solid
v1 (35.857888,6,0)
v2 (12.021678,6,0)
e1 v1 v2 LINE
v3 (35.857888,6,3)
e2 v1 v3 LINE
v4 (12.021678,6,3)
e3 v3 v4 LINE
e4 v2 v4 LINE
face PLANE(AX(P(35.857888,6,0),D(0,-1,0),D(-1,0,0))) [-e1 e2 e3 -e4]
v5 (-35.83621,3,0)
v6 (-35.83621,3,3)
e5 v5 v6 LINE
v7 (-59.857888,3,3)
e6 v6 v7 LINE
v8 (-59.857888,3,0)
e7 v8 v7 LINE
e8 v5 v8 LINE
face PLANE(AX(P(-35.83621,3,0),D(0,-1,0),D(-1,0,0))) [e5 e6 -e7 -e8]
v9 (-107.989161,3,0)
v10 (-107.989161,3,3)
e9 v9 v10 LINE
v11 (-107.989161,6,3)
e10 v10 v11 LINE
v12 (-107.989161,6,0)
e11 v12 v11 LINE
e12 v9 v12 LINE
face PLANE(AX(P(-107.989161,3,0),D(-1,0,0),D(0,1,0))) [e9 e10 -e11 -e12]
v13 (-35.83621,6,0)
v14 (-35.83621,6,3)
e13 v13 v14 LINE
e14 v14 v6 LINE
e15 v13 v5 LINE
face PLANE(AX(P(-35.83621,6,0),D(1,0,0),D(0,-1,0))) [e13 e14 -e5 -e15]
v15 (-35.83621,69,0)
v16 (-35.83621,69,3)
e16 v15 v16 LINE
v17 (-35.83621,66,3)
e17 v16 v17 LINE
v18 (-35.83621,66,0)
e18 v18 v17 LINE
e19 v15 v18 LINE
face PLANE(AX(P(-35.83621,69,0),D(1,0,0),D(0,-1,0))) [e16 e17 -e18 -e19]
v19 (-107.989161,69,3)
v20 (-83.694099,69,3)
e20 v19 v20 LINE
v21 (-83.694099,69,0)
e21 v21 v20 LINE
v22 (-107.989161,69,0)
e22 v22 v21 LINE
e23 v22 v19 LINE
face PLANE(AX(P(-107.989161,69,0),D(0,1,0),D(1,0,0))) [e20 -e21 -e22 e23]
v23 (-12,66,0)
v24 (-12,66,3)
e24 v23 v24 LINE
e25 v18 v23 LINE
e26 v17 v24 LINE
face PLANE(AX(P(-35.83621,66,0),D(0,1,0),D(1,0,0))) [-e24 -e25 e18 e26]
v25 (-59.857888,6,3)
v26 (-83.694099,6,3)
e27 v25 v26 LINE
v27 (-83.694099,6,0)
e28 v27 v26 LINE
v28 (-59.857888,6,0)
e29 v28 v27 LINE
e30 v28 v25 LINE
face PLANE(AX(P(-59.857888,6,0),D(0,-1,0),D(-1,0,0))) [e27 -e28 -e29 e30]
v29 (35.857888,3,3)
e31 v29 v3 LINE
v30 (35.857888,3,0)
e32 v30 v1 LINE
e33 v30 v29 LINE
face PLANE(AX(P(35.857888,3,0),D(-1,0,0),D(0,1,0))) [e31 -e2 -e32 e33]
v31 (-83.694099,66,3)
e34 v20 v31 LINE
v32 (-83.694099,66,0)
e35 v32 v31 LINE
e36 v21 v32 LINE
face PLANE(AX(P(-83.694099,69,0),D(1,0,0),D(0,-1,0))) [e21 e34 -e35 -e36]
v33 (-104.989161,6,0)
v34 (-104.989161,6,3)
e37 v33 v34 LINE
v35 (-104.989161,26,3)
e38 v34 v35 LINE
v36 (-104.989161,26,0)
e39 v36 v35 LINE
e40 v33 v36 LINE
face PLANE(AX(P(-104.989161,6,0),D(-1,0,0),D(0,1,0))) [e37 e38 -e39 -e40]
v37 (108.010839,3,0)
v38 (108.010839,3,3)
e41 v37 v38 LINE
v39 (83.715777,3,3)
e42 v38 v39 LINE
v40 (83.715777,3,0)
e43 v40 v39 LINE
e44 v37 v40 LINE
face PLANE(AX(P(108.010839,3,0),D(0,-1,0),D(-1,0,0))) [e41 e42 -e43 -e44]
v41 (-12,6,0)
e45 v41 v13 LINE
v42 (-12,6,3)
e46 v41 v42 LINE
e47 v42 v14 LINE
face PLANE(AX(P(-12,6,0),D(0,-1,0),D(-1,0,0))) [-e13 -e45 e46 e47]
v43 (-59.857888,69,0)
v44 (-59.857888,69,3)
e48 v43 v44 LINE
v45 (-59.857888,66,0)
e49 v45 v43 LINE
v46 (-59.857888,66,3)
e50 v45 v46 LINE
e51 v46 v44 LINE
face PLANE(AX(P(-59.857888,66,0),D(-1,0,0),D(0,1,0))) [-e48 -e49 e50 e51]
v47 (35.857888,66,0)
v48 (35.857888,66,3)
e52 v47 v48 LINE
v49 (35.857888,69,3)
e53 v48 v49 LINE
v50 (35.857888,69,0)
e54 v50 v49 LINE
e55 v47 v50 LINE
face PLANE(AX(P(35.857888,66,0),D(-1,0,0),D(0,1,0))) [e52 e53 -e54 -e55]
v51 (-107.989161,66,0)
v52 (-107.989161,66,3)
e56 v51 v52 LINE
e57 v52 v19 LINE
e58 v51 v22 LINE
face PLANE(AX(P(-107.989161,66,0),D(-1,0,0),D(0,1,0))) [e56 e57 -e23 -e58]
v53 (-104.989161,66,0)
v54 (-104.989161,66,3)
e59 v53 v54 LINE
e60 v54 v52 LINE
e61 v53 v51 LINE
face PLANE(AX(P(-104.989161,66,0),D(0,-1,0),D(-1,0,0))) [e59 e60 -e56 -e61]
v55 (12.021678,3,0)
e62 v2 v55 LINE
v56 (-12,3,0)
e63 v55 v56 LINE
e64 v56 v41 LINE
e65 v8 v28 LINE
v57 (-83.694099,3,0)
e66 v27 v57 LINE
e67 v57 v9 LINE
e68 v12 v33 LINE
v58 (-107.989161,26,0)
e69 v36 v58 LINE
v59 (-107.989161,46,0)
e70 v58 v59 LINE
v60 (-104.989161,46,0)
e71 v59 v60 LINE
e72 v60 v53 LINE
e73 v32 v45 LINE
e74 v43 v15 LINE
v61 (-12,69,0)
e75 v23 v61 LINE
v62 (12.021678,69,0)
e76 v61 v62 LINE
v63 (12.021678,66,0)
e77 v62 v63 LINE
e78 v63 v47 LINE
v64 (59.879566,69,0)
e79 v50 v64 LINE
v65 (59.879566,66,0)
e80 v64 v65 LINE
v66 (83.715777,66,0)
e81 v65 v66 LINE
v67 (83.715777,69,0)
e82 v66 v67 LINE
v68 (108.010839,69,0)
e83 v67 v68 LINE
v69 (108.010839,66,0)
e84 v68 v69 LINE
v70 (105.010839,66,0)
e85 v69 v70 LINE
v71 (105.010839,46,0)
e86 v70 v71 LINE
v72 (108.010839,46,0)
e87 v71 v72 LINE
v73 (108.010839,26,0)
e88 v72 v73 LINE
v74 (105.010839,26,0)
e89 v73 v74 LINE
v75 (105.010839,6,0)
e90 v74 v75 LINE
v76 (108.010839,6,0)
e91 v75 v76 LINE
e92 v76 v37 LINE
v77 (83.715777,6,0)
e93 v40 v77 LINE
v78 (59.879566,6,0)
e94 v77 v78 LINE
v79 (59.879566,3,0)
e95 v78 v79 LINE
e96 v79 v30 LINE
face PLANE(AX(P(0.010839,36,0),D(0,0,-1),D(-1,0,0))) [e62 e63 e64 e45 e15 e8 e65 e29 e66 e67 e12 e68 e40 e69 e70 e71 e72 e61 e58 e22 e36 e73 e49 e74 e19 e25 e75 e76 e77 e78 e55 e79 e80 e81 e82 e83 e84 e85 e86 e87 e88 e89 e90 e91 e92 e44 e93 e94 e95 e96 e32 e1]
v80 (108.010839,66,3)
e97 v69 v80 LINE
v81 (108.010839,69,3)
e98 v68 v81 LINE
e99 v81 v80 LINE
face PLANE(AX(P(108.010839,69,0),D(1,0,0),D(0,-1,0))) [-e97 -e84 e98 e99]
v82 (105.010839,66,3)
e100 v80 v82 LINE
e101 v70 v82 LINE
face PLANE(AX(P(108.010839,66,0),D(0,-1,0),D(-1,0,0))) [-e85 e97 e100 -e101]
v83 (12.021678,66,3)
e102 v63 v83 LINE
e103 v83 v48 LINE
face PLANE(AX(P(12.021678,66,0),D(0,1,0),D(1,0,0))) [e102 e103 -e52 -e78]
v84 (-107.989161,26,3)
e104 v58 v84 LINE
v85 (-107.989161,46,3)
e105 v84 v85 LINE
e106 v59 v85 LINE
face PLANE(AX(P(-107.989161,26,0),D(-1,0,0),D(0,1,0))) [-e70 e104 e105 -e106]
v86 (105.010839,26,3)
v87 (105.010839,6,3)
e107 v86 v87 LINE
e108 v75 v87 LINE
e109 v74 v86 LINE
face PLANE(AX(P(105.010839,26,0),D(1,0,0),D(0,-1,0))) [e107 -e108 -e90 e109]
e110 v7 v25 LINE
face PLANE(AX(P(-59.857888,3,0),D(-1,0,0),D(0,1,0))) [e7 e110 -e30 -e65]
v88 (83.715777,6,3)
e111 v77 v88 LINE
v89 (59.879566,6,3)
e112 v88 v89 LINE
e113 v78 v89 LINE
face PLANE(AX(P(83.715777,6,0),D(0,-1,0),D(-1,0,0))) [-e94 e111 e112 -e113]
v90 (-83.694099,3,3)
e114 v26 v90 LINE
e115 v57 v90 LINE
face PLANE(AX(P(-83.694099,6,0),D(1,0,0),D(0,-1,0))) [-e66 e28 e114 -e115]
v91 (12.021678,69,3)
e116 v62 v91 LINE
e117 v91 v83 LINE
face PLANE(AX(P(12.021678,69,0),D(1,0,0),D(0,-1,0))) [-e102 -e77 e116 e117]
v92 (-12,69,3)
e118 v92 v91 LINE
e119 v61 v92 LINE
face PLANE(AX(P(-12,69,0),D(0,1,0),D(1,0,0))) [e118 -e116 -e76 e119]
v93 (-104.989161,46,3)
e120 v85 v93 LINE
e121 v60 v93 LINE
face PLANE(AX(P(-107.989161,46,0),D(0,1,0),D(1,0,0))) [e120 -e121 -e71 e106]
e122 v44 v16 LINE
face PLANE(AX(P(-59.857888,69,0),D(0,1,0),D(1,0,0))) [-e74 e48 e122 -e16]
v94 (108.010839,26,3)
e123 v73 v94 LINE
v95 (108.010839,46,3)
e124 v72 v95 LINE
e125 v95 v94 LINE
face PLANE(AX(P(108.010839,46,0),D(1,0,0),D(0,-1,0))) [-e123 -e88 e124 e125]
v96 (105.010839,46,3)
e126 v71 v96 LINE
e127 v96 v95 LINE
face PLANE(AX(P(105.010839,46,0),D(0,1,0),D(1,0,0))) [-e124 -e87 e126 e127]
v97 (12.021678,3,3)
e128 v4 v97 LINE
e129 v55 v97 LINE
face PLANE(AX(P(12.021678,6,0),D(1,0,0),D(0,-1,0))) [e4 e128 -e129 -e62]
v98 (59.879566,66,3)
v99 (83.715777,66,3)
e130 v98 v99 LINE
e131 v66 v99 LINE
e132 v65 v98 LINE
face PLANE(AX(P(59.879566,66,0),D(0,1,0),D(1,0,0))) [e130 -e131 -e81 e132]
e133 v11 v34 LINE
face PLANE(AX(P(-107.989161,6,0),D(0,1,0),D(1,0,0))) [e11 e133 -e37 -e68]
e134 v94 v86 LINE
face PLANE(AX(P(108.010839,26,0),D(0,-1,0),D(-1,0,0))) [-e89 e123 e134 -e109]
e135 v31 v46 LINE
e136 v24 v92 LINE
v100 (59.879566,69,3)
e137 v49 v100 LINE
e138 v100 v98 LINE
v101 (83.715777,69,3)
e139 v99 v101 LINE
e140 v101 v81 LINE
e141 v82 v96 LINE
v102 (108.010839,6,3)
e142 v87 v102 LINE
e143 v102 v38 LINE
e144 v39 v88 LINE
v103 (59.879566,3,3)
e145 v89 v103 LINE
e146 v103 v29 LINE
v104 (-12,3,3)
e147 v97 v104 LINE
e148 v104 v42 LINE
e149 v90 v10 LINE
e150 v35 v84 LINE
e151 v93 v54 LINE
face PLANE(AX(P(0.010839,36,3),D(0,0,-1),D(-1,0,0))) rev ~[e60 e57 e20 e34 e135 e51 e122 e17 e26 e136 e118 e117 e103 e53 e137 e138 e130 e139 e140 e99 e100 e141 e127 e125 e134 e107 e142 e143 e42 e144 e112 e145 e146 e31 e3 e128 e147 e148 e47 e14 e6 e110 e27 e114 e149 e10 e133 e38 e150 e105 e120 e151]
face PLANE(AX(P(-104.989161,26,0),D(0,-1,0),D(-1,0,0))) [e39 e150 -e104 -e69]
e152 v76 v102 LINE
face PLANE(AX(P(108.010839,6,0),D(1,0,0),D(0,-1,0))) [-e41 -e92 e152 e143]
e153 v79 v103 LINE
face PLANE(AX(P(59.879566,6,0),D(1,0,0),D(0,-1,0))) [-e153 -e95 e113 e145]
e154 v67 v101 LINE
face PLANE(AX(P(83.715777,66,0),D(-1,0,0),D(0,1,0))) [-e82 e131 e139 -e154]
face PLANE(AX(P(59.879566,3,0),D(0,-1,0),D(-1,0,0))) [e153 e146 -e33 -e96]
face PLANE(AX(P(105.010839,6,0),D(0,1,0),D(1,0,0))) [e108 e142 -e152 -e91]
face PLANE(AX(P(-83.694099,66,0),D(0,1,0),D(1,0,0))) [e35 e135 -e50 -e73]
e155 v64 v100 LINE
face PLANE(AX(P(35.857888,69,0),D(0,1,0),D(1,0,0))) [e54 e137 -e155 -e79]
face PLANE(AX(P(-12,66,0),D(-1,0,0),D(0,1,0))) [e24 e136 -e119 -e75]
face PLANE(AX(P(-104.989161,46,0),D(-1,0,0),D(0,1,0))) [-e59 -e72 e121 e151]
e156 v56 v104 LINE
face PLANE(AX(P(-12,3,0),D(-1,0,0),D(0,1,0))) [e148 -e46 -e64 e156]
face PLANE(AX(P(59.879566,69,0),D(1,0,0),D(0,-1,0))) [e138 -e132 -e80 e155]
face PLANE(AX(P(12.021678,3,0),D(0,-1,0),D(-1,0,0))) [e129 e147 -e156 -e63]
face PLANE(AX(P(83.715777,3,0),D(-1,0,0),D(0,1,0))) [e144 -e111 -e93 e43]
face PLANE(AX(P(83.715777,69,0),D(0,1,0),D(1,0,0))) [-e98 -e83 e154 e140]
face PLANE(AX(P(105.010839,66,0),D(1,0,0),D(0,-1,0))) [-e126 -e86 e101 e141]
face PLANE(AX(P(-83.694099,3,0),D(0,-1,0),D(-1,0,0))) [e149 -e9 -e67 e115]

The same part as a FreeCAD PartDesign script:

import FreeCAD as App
import Part
import Sketcher

V = App.Vector
Q = App.Units.Quantity

doc = App.newDocument("Part")
body = doc.addObject("PartDesign::Body", "Body")

sketch1 = body.newObject("Sketcher::SketchObject", "Sketch")
sketch1.AttachmentSupport = (doc.getObject("XY_Plane"), [""])
sketch1.MapMode = "FlatFace"
sketch1.addGeometry([
    Part.LineSegment(V(-107.989161, 3, 0), V(-83.694099, 3, 0)),
    Part.LineSegment(V(-83.694099, 3, 0), V(-83.694099, 6, 0)),
    Part.LineSegment(V(-83.694099, 6, 0), V(-59.857888, 6, 0)),
    Part.LineSegment(V(-59.857888, 6, 0), V(-59.857888, 3, 0)),
    Part.LineSegment(V(-59.857888, 3, 0), V(-35.83621, 3, 0)),
    Part.LineSegment(V(-35.83621, 3, 0), V(-35.83621, 6, 0)),
    Part.LineSegment(V(-35.83621, 6, 0), V(-12, 6, 0)),
    Part.LineSegment(V(-12, 6, 0), V(-12, 3, 0)),
    Part.LineSegment(V(-12, 3, 0), V(12.021678, 3, 0)),
    Part.LineSegment(V(12.021678, 3, 0), V(12.021678, 6, 0)),
    Part.LineSegment(V(12.021678, 6, 0), V(35.857888, 6, 0)),
    Part.LineSegment(V(35.857888, 6, 0), V(35.857888, 3, 0)),
    Part.LineSegment(V(35.857888, 3, 0), V(59.879566, 3, 0)),
    Part.LineSegment(V(59.879566, 3, 0), V(59.879566, 6, 0)),
    Part.LineSegment(V(59.879566, 6, 0), V(83.715777, 6, 0)),
    Part.LineSegment(V(83.715777, 6, 0), V(83.715777, 3, 0)),
    Part.LineSegment(V(83.715777, 3, 0), V(108.010839, 3, 0)),
    Part.LineSegment(V(108.010839, 3, 0), V(108.010839, 6, 0)),
    Part.LineSegment(V(108.010839, 6, 0), V(105.010839, 6, 0)),
    Part.LineSegment(V(105.010839, 6, 0), V(105.010839, 26, 0)),
    Part.LineSegment(V(105.010839, 26, 0), V(108.010839, 26, 0)),
    Part.LineSegment(V(108.010839, 26, 0), V(108.010839, 46, 0)),
    Part.LineSegment(V(108.010839, 46, 0), V(105.010839, 46, 0)),
    Part.LineSegment(V(105.010839, 46, 0), V(105.010839, 66, 0)),
    Part.LineSegment(V(105.010839, 66, 0), V(108.010839, 66, 0)),
    Part.LineSegment(V(108.010839, 66, 0), V(108.010839, 69, 0)),
    Part.LineSegment(V(108.010839, 69, 0), V(83.715777, 69, 0)),
    Part.LineSegment(V(83.715777, 69, 0), V(83.715777, 66, 0)),
    Part.LineSegment(V(83.715777, 66, 0), V(59.879566, 66, 0)),
    Part.LineSegment(V(59.879566, 66, 0), V(59.879566, 69, 0)),
    Part.LineSegment(V(59.879566, 69, 0), V(35.857888, 69, 0)),
    Part.LineSegment(V(35.857888, 69, 0), V(35.857888, 66, 0)),
    Part.LineSegment(V(35.857888, 66, 0), V(12.021678, 66, 0)),
    Part.LineSegment(V(12.021678, 66, 0), V(12.021678, 69, 0)),
    Part.LineSegment(V(12.021678, 69, 0), V(-12, 69, 0)),
    Part.LineSegment(V(-12, 69, 0), V(-12, 66, 0)),
    Part.LineSegment(V(-12, 66, 0), V(-35.83621, 66, 0)),
    Part.LineSegment(V(-35.83621, 66, 0), V(-35.83621, 69, 0)),
    Part.LineSegment(V(-35.83621, 69, 0), V(-59.857888, 69, 0)),
    Part.LineSegment(V(-59.857888, 69, 0), V(-59.857888, 66, 0)),
    Part.LineSegment(V(-59.857888, 66, 0), V(-83.694099, 66, 0)),
    Part.LineSegment(V(-83.694099, 66, 0), V(-83.694099, 69, 0)),
    Part.LineSegment(V(-83.694099, 69, 0), V(-107.989161, 69, 0)),
    Part.LineSegment(V(-107.989161, 69, 0), V(-107.989161, 66, 0)),
    Part.LineSegment(V(-107.989161, 66, 0), V(-104.989161, 66, 0)),
    Part.LineSegment(V(-104.989161, 66, 0), V(-104.989161, 46, 0)),
    Part.LineSegment(V(-104.989161, 46, 0), V(-107.989161, 46, 0)),
    Part.LineSegment(V(-107.989161, 46, 0), V(-107.989161, 26, 0)),
    Part.LineSegment(V(-107.989161, 26, 0), V(-104.989161, 26, 0)),
    Part.LineSegment(V(-104.989161, 26, 0), V(-104.989161, 6, 0)),
    Part.LineSegment(V(-104.989161, 6, 0), V(-107.989161, 6, 0)),
    Part.LineSegment(V(-107.989161, 6, 0), V(-107.989161, 3, 0)),
], False)
sketch1.addConstraint([
    Sketcher.Constraint("Coincident", 0, 2, 1, 1),
    Sketcher.Constraint("Coincident", 1, 2, 2, 1),
    Sketcher.Constraint("Coincident", 2, 2, 3, 1),
    Sketcher.Constraint("Coincident", 3, 2, 4, 1),
    Sketcher.Constraint("Coincident", 4, 2, 5, 1),
    Sketcher.Constraint("Coincident", 5, 2, 6, 1),
    Sketcher.Constraint("Coincident", 6, 2, 7, 1),
    Sketcher.Constraint("Coincident", 7, 2, 8, 1),
    Sketcher.Constraint("Coincident", 8, 2, 9, 1),
    Sketcher.Constraint("Coincident", 9, 2, 10, 1),
    Sketcher.Constraint("Coincident", 10, 2, 11, 1),
    Sketcher.Constraint("Coincident", 11, 2, 12, 1),
    Sketcher.Constraint("Coincident", 12, 2, 13, 1),
    Sketcher.Constraint("Coincident", 13, 2, 14, 1),
    Sketcher.Constraint("Coincident", 14, 2, 15, 1),
    Sketcher.Constraint("Coincident", 15, 2, 16, 1),
    Sketcher.Constraint("Coincident", 16, 2, 17, 1),
    Sketcher.Constraint("Coincident", 17, 2, 18, 1),
    Sketcher.Constraint("Coincident", 18, 2, 19, 1),
    Sketcher.Constraint("Coincident", 19, 2, 20, 1),
    Sketcher.Constraint("Coincident", 20, 2, 21, 1),
    Sketcher.Constraint("Coincident", 21, 2, 22, 1),
    Sketcher.Constraint("Coincident", 22, 2, 23, 1),
    Sketcher.Constraint("Coincident", 23, 2, 24, 1),
    Sketcher.Constraint("Coincident", 24, 2, 25, 1),
    Sketcher.Constraint("Coincident", 25, 2, 26, 1),
    Sketcher.Constraint("Coincident", 26, 2, 27, 1),
    Sketcher.Constraint("Coincident", 27, 2, 28, 1),
    Sketcher.Constraint("Coincident", 28, 2, 29, 1),
    Sketcher.Constraint("Coincident", 29, 2, 30, 1),
    Sketcher.Constraint("Coincident", 30, 2, 31, 1),
    Sketcher.Constraint("Coincident", 31, 2, 32, 1),
    Sketcher.Constraint("Coincident", 32, 2, 33, 1),
    Sketcher.Constraint("Coincident", 33, 2, 34, 1),
    Sketcher.Constraint("Coincident", 34, 2, 35, 1),
    Sketcher.Constraint("Coincident", 35, 2, 36, 1),
    Sketcher.Constraint("Coincident", 36, 2, 37, 1),
    Sketcher.Constraint("Coincident", 37, 2, 38, 1),
    Sketcher.Constraint("Coincident", 38, 2, 39, 1),
    Sketcher.Constraint("Coincident", 39, 2, 40, 1),
    Sketcher.Constraint("Coincident", 40, 2, 41, 1),
    Sketcher.Constraint("Coincident", 41, 2, 42, 1),
    Sketcher.Constraint("Coincident", 42, 2, 43, 1),
    Sketcher.Constraint("Coincident", 43, 2, 44, 1),
    Sketcher.Constraint("Coincident", 44, 2, 45, 1),
    Sketcher.Constraint("Coincident", 45, 2, 46, 1),
    Sketcher.Constraint("Coincident", 46, 2, 47, 1),
    Sketcher.Constraint("Coincident", 47, 2, 48, 1),
    Sketcher.Constraint("Coincident", 48, 2, 49, 1),
    Sketcher.Constraint("Coincident", 49, 2, 50, 1),
    Sketcher.Constraint("Coincident", 50, 2, 51, 1),
    Sketcher.Constraint("Coincident", 51, 2, 0, 1),
    Sketcher.Constraint("Horizontal", 0),
    Sketcher.Constraint("Vertical", 1),
    Sketcher.Constraint("Horizontal", 2),
    Sketcher.Constraint("Vertical", 3),
    Sketcher.Constraint("Horizontal", 4),
    Sketcher.Constraint("Vertical", 5),
    Sketcher.Constraint("Horizontal", 6),
    Sketcher.Constraint("Vertical", 7),
    Sketcher.Constraint("Horizontal", 8),
    Sketcher.Constraint("Vertical", 9),
    Sketcher.Constraint("Horizontal", 10),
    Sketcher.Constraint("Vertical", 11),
    Sketcher.Constraint("Horizontal", 12),
    Sketcher.Constraint("Vertical", 13),
    Sketcher.Constraint("Horizontal", 14),
    Sketcher.Constraint("Vertical", 15),
    Sketcher.Constraint("Horizontal", 16),
    Sketcher.Constraint("Vertical", 17),
    Sketcher.Constraint("Horizontal", 18),
    Sketcher.Constraint("Vertical", 19),
    Sketcher.Constraint("Horizontal", 20),
    Sketcher.Constraint("Vertical", 21),
    Sketcher.Constraint("Horizontal", 22),
    Sketcher.Constraint("Vertical", 23),
    Sketcher.Constraint("Horizontal", 24),
    Sketcher.Constraint("Vertical", 25),
    Sketcher.Constraint("Horizontal", 26),
    Sketcher.Constraint("Vertical", 27),
    Sketcher.Constraint("Horizontal", 28),
    Sketcher.Constraint("Vertical", 29),
    Sketcher.Constraint("Horizontal", 30),
    Sketcher.Constraint("Vertical", 31),
    Sketcher.Constraint("Horizontal", 32),
    Sketcher.Constraint("Vertical", 33),
    Sketcher.Constraint("Horizontal", 34),
    Sketcher.Constraint("Vertical", 35),
    Sketcher.Constraint("Horizontal", 36),
    Sketcher.Constraint("Vertical", 37),
    Sketcher.Constraint("Horizontal", 38),
    Sketcher.Constraint("Vertical", 39),
    Sketcher.Constraint("Horizontal", 40),
    Sketcher.Constraint("Vertical", 41),
    Sketcher.Constraint("Horizontal", 42),
    Sketcher.Constraint("Vertical", 43),
    Sketcher.Constraint("Horizontal", 44),
    Sketcher.Constraint("Vertical", 45),
    Sketcher.Constraint("Horizontal", 46),
    Sketcher.Constraint("Vertical", 47),
    Sketcher.Constraint("Horizontal", 48),
    Sketcher.Constraint("Vertical", 49),
    Sketcher.Constraint("Horizontal", 50),
    Sketcher.Constraint("Vertical", 51),
    Sketcher.Constraint("Horizontal", 0, 2, 3, 2),
    Sketcher.Constraint("Horizontal", 2, 2, 5, 2),
    Sketcher.Constraint("Horizontal", 4, 2, 7, 2),
    Sketcher.Constraint("Horizontal", 6, 2, 9, 2),
    Sketcher.Constraint("Horizontal", 8, 2, 11, 2),
    Sketcher.Constraint("Horizontal", 10, 2, 13, 2),
    Sketcher.Constraint("Horizontal", 12, 2, 15, 2),
    Sketcher.Constraint("Horizontal", 14, 2, 17, 2),
    Sketcher.Constraint("Horizontal", 24, 2, 27, 2),
    Sketcher.Constraint("Horizontal", 26, 2, 29, 2),
    Sketcher.Constraint("Horizontal", 28, 2, 31, 2),
    Sketcher.Constraint("Horizontal", 30, 2, 33, 2),
    Sketcher.Constraint("Horizontal", 32, 2, 35, 2),
    Sketcher.Constraint("Horizontal", 34, 2, 37, 2),
    Sketcher.Constraint("Horizontal", 36, 2, 39, 2),
    Sketcher.Constraint("Horizontal", 38, 2, 41, 2),
    Sketcher.Constraint("Horizontal", 40, 2, 43, 2),
    Sketcher.Constraint("Horizontal", 22, 2, 45, 2),
    Sketcher.Constraint("Horizontal", 20, 2, 47, 2),
    Sketcher.Constraint("Horizontal", 18, 2, 49, 2),
    Sketcher.Constraint("Vertical", 17, 2, 20, 2),
    Sketcher.Constraint("Vertical", 19, 2, 22, 2),
    Sketcher.Constraint("Vertical", 21, 2, 24, 2),
    Sketcher.Constraint("Vertical", 15, 2, 26, 2),
    Sketcher.Constraint("Vertical", 13, 2, 28, 2),
    Sketcher.Constraint("Vertical", 11, 2, 30, 2),
    Sketcher.Constraint("Vertical", 9, 2, 32, 2),
    Sketcher.Constraint("Vertical", 7, 2, 34, 2),
    Sketcher.Constraint("Vertical", 5, 2, 36, 2),
    Sketcher.Constraint("Vertical", 3, 2, 38, 2),
    Sketcher.Constraint("Vertical", 1, 2, 40, 2),
    Sketcher.Constraint("Vertical", 43, 2, 46, 2),
    Sketcher.Constraint("Vertical", 45, 2, 48, 2),
    Sketcher.Constraint("Vertical", 47, 2, 50, 2),
    Sketcher.Constraint("Equal", 2, 6),
    Sketcher.Constraint("Equal", 4, 8),
    Sketcher.Constraint("Equal", 6, 10),
    Sketcher.Constraint("Equal", 8, 12),
    Sketcher.Constraint("Equal", 10, 14),
    Sketcher.Constraint("Equal", 0, 16),
    Sketcher.Constraint("Equal", 24, 44),
    Sketcher.Constraint("Equal", 50, 1),
    Sketcher.Constraint("Equal", 19, 21),
    Sketcher.Constraint("Equal", 21, 23),
    Sketcher.Constraint("Equal", 17, 25),
    Sketcher.Constraint("DistanceX", 18, 2, 18, 1, Q("3 mm")),
    Sketcher.Constraint("DistanceY", 19, 1, 19, 2, Q("20 mm")),
    Sketcher.Constraint("DistanceY", -1, 1, 0, 2, Q("3 mm")),
    Sketcher.Constraint("DistanceX", 6, 2, -1, 1, Q("12 mm")),
    Sketcher.Constraint("DistanceX", 2, 1, 2, 2, Q("23.83621 mm")),
    Sketcher.Constraint("DistanceX", 4, 1, 4, 2, Q("24.021678 mm")),
    Sketcher.Constraint("DistanceX", 0, 1, 0, 2, Q("24.295062 mm")),
])
pad1 = body.newObject("PartDesign::Pad", "Pad")
pad1.Profile = sketch1
pad1.Length = 3

doc.recompute()
